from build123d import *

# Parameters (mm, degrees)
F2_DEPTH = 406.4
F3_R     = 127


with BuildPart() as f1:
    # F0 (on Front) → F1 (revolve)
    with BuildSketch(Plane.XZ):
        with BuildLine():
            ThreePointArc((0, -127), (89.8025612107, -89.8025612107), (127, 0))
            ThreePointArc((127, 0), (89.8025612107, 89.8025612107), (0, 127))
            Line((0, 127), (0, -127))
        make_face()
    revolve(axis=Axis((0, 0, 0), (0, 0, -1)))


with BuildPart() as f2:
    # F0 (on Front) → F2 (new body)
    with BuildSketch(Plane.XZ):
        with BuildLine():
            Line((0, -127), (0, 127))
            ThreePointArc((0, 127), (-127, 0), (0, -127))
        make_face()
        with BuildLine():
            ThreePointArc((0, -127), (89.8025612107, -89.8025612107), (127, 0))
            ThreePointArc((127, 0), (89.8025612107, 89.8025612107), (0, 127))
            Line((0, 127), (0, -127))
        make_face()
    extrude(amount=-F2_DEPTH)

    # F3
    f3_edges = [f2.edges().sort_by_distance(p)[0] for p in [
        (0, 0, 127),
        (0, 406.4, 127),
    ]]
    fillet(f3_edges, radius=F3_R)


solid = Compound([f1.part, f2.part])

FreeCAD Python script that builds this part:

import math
import FreeCAD as App
import Part
import Sketcher
from FreeCAD import Vector
Q = App.Units.Quantity


def edges_at(feature, points):
    """Names of the edges that pass closest to the given points."""
    edges = feature.Shape.Edges
    near = lambda p: min(range(len(edges)), key=lambda i: edges[i].distToShape(Part.Vertex(*p))[0])
    return sorted({f"Edge{near(p) + 1}" for p in points})

doc = App.newDocument("Part")
body = doc.addObject("PartDesign::Body", "Body")

# Sketch on XZ plane
sketch1 = doc.addObject("Sketcher::SketchObject", "Sketch")
body.addObject(sketch1)
sketch1.AttachmentSupport = (doc.XZ_Plane, [""])
sketch1.MapMode = "FlatFace"
sketch1.addGeometry([
    Part.ArcOfCircle(Part.Circle(Vector(0, 0, 0), Vector(0, 0, 1), 127), math.radians(-90), math.radians(90)),
    Part.LineSegment(Vector(0, 127, 0), Vector(0, -127, 0)),
], False)
sketch1.addConstraint([
    Sketcher.Constraint("Coincident", 0, 1, 1, 2),
    Sketcher.Constraint("Coincident", 1, 1, 0, 2),
    Sketcher.Constraint("Vertical", 1),
    Sketcher.Constraint("Coincident", 0, 3, -1, 1),
    Sketcher.Constraint("PointOnObject", 0, 1, -2),
    Sketcher.Constraint("Radius", 0, Q("5 in")),
])
revolution = doc.addObject("PartDesign::Revolution", "Revolution")
body.addObject(revolution)
revolution.Profile = sketch1
revolution.ReferenceAxis = (sketch1, ["V_Axis"])
revolution.Angle = 360
body2 = doc.addObject("PartDesign::Body", "Body001")

# Sketch on XZ plane
sketch2 = doc.addObject("Sketcher::SketchObject", "Sketch001")
body2.addObject(sketch2)
sketch2.AttachmentSupport = (doc.getObject("XZ_Plane001"), [""])
sketch2.MapMode = "FlatFace"
sketch2.addGeometry(Part.Circle(Vector(0, 0, 0), Vector(0, 0, 1), 127), False)
sketch2.addConstraint([
    Sketcher.Constraint("Coincident", 0, 3, -1, 1),
    Sketcher.Constraint("Diameter", 0, Q("10 in")),
])
pad1 = doc.addObject("PartDesign::Pad", "Pad")
body2.addObject(pad1)
pad1.Profile = sketch2
pad1.Length = Q("16 in")
pad1.Reversed = True
doc.recompute()

fillet = doc.addObject("PartDesign::Fillet", "Fillet")
body2.addObject(fillet)
fillet.Base = (pad1, edges_at(pad1, [(0, 0, 127), (0, 406.4, 127)]))
fillet.Radius = Q("5 in")

doc.recompute()
